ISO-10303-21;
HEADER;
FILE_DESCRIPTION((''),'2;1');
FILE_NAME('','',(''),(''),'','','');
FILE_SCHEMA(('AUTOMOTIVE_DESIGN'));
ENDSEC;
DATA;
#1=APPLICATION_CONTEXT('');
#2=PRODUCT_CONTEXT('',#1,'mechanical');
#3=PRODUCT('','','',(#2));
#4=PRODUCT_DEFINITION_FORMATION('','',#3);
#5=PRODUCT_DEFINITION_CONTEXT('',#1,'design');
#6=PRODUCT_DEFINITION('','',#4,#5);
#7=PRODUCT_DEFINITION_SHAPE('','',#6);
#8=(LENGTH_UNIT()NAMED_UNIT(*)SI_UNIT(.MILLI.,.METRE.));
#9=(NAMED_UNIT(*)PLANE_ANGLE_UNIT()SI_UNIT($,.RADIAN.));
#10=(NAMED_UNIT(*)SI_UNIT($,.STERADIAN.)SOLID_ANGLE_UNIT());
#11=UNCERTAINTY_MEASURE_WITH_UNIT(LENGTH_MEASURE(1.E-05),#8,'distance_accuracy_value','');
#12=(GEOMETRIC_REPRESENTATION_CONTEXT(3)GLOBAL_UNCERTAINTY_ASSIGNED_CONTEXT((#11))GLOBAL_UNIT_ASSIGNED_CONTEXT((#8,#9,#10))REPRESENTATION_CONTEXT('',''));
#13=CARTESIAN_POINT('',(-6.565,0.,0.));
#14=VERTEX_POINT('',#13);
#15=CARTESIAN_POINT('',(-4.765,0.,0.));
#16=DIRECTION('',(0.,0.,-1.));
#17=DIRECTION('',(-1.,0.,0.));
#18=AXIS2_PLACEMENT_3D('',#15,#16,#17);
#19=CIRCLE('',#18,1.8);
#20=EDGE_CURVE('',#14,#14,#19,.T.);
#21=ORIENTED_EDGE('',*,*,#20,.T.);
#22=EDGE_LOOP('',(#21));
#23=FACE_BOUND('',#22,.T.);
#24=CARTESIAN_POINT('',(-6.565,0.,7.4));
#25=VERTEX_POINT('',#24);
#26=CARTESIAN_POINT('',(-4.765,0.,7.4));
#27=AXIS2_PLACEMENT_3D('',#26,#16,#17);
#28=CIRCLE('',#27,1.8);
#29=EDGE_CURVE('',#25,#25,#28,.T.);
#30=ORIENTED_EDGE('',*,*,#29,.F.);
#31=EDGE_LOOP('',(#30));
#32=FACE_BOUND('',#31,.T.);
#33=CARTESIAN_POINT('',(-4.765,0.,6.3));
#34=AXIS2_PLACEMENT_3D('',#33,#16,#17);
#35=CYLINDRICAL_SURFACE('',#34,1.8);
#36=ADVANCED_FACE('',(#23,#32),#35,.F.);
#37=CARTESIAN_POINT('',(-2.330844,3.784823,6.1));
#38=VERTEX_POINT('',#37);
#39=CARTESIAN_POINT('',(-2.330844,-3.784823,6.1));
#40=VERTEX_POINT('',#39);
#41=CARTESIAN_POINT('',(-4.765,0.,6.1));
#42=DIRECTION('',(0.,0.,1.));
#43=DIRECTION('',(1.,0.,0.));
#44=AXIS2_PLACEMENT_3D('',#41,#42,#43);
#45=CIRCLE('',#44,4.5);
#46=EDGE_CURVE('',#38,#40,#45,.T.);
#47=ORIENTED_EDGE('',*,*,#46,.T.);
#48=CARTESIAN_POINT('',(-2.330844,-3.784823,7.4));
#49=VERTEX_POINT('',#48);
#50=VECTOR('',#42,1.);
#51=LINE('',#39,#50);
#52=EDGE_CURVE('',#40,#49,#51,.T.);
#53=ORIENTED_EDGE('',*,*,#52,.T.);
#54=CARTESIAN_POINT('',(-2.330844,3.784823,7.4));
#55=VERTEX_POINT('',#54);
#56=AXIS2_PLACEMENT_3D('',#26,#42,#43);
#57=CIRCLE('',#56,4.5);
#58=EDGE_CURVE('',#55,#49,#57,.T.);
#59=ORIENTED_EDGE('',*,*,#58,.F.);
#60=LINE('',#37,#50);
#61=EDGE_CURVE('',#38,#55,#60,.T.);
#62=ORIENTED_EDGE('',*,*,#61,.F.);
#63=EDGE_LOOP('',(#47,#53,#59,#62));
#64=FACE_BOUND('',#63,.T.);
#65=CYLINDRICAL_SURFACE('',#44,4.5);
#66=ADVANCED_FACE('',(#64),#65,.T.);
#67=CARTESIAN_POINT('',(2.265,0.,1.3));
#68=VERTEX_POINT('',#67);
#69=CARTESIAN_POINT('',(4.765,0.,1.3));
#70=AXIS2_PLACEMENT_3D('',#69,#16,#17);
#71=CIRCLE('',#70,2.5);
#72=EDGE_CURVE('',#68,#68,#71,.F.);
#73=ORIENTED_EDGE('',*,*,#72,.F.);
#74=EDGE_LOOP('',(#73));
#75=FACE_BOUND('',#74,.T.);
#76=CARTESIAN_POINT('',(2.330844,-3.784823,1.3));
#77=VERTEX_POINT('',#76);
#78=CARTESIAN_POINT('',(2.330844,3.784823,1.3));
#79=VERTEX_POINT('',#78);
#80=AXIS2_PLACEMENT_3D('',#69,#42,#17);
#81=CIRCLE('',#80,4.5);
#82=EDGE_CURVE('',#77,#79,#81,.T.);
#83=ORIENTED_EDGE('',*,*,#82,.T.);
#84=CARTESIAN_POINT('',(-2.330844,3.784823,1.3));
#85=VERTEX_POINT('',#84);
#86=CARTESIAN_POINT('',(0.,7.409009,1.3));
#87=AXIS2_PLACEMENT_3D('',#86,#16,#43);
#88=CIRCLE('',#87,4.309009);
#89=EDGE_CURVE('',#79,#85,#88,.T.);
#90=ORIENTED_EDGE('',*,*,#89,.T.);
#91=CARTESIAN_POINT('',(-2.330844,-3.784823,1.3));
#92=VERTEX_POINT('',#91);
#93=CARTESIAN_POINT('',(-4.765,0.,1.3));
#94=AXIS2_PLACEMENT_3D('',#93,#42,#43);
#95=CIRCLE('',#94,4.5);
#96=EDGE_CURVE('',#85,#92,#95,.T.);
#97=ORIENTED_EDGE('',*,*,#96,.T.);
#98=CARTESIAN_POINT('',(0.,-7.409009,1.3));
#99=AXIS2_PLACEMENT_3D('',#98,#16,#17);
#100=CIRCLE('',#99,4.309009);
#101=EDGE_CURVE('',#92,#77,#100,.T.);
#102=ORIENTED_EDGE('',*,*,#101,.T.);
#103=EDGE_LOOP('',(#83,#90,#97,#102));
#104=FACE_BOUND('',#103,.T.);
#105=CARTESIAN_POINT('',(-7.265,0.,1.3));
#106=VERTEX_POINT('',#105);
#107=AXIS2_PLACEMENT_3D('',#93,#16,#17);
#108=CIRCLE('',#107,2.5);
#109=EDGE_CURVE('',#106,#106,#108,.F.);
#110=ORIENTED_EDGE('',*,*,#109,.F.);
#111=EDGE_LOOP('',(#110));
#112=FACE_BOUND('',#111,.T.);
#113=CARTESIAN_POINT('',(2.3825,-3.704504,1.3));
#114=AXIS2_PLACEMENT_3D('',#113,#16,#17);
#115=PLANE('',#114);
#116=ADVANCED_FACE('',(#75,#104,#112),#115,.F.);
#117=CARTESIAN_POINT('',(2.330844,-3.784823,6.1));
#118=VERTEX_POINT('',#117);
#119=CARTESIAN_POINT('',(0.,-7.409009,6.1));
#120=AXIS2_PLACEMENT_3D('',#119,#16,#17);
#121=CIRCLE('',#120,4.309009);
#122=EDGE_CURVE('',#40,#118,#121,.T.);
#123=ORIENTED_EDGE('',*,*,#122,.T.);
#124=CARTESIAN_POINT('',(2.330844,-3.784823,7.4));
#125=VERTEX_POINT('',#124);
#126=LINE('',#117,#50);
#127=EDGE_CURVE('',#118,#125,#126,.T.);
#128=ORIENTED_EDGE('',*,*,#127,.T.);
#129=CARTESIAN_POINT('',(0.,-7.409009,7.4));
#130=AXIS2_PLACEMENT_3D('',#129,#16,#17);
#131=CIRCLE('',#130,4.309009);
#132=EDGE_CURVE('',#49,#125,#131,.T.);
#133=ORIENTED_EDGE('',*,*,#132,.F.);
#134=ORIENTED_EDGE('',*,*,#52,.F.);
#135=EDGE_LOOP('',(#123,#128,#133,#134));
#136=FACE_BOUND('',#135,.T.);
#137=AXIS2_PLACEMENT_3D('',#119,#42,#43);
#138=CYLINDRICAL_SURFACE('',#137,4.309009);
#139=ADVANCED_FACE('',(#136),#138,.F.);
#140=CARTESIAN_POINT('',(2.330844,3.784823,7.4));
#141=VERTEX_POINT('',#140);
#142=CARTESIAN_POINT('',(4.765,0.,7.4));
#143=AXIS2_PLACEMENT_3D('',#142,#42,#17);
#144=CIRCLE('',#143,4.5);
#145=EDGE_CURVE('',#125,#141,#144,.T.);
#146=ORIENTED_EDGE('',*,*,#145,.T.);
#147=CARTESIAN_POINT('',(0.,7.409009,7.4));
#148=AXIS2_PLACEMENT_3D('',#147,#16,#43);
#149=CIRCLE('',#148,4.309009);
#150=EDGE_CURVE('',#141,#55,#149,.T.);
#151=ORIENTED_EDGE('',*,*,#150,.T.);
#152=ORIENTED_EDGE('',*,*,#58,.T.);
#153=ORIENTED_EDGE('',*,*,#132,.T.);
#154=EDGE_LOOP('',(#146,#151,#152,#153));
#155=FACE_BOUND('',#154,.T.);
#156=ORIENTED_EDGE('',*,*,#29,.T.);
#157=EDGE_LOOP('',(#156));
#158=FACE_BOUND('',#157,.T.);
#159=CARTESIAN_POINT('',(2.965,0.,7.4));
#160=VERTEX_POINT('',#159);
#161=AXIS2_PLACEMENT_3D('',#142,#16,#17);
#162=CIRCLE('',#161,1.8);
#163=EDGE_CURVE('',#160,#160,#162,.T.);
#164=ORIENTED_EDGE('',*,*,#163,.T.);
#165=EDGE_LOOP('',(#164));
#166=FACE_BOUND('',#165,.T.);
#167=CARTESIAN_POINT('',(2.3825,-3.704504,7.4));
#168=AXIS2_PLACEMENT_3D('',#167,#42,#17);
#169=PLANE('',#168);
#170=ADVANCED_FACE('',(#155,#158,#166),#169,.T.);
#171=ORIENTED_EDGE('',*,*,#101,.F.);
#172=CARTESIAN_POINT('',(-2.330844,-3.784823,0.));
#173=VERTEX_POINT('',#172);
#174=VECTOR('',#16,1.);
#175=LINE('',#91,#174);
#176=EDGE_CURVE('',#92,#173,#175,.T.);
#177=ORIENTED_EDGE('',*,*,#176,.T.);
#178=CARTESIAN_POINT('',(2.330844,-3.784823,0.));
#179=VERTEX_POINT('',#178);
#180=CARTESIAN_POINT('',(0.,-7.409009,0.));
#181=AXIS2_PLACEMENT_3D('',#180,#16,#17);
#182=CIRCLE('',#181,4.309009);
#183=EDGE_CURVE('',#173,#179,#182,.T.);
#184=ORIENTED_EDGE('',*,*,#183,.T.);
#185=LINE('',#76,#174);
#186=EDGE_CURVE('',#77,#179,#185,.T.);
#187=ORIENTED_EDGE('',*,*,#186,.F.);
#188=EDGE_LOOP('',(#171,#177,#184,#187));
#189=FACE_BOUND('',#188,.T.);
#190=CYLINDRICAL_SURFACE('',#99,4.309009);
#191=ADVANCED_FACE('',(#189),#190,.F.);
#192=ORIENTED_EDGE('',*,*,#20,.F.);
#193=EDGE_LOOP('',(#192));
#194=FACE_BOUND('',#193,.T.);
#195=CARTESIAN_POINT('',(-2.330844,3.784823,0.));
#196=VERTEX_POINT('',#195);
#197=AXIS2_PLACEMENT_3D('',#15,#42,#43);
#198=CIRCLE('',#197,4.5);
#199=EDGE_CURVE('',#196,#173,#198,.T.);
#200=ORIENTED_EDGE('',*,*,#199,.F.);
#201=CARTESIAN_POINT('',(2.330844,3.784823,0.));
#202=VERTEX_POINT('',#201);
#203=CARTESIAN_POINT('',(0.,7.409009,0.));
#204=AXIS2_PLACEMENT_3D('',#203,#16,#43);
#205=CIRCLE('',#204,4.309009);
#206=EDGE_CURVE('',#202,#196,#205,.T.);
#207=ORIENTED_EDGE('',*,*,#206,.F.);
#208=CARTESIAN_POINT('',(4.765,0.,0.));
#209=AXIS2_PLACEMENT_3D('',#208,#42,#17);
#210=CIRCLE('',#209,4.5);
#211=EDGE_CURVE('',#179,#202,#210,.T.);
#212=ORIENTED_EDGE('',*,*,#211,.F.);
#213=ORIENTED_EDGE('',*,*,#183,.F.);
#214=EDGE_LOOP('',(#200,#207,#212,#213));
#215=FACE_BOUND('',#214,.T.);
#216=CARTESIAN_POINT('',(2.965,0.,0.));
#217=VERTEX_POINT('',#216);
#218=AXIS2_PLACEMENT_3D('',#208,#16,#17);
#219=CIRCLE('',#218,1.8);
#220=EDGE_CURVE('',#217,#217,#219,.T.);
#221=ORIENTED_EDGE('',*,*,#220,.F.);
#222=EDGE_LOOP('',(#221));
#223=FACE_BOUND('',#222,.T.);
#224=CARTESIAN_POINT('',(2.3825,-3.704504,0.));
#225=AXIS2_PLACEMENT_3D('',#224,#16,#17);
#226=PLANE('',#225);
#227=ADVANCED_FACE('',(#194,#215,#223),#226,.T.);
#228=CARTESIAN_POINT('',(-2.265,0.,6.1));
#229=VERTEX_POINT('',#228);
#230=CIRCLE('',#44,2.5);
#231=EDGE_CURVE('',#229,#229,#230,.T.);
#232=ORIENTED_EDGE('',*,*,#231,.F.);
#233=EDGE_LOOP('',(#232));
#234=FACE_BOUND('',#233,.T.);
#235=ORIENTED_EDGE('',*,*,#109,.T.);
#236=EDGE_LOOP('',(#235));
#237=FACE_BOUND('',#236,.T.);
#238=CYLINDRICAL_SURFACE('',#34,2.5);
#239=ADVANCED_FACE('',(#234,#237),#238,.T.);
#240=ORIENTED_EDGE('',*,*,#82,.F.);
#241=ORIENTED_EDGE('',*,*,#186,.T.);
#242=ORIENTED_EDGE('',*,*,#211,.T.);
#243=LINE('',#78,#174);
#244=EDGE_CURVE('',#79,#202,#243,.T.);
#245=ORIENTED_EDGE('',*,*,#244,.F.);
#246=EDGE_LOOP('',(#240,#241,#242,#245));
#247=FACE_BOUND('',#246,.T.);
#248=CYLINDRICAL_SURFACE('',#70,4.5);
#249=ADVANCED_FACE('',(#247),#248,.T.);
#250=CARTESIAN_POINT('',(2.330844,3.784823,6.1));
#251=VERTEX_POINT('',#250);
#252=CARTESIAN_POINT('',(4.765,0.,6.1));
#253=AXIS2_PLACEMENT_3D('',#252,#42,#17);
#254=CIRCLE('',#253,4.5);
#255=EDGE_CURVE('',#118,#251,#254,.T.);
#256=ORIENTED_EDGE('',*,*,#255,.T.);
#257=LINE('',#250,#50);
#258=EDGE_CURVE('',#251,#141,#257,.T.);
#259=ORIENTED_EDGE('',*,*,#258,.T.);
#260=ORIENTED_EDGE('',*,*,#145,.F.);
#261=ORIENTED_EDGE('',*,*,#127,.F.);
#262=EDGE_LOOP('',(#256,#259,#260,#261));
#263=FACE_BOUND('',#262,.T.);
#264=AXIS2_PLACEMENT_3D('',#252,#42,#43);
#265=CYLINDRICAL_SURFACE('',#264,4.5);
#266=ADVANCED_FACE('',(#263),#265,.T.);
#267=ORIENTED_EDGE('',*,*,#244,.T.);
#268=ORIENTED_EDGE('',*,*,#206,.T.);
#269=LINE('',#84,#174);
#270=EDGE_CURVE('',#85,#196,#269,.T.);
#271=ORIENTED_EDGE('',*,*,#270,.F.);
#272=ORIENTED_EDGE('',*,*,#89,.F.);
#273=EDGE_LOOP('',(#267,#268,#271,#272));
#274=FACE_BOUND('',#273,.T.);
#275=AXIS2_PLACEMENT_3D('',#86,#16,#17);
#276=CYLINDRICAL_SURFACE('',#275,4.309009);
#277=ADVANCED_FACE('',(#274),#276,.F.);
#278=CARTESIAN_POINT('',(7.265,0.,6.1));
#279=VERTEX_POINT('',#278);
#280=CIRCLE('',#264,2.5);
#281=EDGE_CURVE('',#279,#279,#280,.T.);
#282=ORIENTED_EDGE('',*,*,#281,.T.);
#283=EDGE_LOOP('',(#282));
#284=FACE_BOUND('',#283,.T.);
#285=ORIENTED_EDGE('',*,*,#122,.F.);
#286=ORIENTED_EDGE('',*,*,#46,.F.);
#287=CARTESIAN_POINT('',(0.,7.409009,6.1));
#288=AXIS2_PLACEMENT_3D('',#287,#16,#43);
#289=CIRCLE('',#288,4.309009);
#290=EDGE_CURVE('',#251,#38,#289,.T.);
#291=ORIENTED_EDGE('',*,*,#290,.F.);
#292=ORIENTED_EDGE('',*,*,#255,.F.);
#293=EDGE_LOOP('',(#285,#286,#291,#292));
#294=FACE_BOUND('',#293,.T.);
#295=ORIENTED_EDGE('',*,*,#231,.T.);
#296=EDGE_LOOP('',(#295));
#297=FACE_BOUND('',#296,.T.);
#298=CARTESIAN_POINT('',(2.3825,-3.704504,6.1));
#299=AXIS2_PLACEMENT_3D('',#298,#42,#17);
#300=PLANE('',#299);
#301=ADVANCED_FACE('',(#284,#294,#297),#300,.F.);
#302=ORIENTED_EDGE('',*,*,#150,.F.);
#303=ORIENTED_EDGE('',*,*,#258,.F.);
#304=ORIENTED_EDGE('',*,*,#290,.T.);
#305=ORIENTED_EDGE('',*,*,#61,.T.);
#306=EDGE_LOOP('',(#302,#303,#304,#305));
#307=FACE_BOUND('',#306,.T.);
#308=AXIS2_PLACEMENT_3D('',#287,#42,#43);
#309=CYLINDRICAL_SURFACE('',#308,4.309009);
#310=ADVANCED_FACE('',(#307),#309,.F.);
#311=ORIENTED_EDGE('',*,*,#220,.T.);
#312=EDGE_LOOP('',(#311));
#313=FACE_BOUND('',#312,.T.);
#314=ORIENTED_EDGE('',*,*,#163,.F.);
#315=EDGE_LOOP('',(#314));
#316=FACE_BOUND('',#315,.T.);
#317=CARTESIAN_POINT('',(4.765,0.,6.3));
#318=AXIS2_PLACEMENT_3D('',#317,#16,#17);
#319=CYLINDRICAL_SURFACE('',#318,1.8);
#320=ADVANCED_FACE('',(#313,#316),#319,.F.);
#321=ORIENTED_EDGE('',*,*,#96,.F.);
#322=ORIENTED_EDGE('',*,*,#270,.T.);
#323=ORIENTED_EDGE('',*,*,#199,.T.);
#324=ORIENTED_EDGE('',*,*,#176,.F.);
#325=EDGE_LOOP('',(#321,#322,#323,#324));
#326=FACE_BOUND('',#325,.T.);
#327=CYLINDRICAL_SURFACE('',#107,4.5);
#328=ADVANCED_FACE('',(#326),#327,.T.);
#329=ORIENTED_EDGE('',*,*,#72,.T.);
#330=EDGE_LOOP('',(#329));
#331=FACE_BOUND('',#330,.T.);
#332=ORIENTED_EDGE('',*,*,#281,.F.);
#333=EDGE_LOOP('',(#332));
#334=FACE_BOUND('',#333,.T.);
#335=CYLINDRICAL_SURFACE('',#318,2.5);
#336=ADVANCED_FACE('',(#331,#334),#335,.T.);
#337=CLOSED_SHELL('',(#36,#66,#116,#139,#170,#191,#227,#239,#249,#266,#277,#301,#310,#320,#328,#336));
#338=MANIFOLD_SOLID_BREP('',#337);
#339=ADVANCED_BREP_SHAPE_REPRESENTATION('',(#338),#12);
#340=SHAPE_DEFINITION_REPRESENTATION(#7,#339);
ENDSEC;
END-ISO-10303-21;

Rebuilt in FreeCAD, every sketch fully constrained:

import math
import FreeCAD as App
import Part
import Sketcher

V = App.Vector
Q = App.Units.Quantity

doc = App.newDocument("Part")
body = doc.addObject("PartDesign::Body", "Body")

# Sketch on XY plane
sketch1 = doc.addObject("Sketcher::SketchObject", "Sketch")
body.addObject(sketch1)
sketch1.AttachmentSupport = (doc.XY_Plane, [""])
sketch1.MapMode = "FlatFace"
sketch1.addGeometry([
    Part.ArcOfCircle(Part.Circle(V(-4.765, 0, 0), V(0, 0, 1), 4.5), math.radians(57.253472), math.radians(302.746528)),
    Part.ArcOfCircle(Part.Circle(V(0, -7.409009, 0), V(0, 0, 1), 4.309009), math.radians(57.253472), math.radians(122.746528)),
    Part.ArcOfCircle(Part.Circle(V(4.765, 0, 0), V(0, 0, 1), 4.5), math.radians(-122.746528), math.radians(122.746528)),
    Part.ArcOfCircle(Part.Circle(V(0, 7.409009, 0), V(0, 0, 1), 4.309009), math.radians(-122.746528), math.radians(-57.253472)),
], False)
sketch1.addConstraint([
    Sketcher.Constraint("Tangent", 0, 2, 1, 2),
    Sketcher.Constraint("Tangent", 1, 1, 2, 1),
    Sketcher.Constraint("Tangent", 2, 2, 3, 2),
    Sketcher.Constraint("Tangent", 3, 1, 0, 1),
    Sketcher.Constraint("Equal", 0, 2),
    Sketcher.Constraint("Equal", 1, 3),
    Sketcher.Constraint("Symmetric", 0, 3, 2, 3, -1, 1),
    Sketcher.Constraint("PointOnObject", 0, 3, -1),
    Sketcher.Constraint("Radius", 0, Q("4.5 mm")),
    Sketcher.Constraint("Radius", 1, Q("4.309009 mm")),
    Sketcher.Constraint("DistanceX", 0, 3, 2, 3, Q("9.53 mm")),
])
pad1 = doc.addObject("PartDesign::Pad", "Pad")
body.addObject(pad1)
pad1.Profile = sketch1
pad1.Length = 1.3

# Sketch on XY plane
sketch2 = doc.addObject("Sketcher::SketchObject", "Sketch001")
body.addObject(sketch2)
sketch2.AttachmentSupport = (doc.XY_Plane, [""])
sketch2.MapMode = "FlatFace"
sketch2.AttachmentOffset = App.Placement(V(0, 0, 1.3), App.Rotation())
sketch2.addGeometry([
    Part.Circle(V(-4.765, 0, 0), V(0, 0, 1), 2.5),
    Part.Circle(V(-4.765, 0, 0), V(0, 0, 1), 1.8),
    Part.Circle(V(4.765, 0, 0), V(0, 0, 1), 2.5),
    Part.Circle(V(4.765, 0, 0), V(0, 0, 1), 1.8),
], False)
sketch2.addConstraint([
    Sketcher.Constraint("Coincident", 1, 3, 0, 3),
    Sketcher.Constraint("Coincident", 3, 3, 2, 3),
    Sketcher.Constraint("Equal", 0, 2),
    Sketcher.Constraint("Equal", 1, 3),
    Sketcher.Constraint("Symmetric", 0, 3, 2, 3, -1, 1),
    Sketcher.Constraint("PointOnObject", 0, 3, -1),
    Sketcher.Constraint("Diameter", 0, Q("5 mm")),
    Sketcher.Constraint("Diameter", 1, Q("3.6 mm")),
    Sketcher.Constraint("DistanceX", 0, 3, 2, 3, Q("9.53 mm")),
])
pad2 = doc.addObject("PartDesign::Pad", "Pad001")
body.addObject(pad2)
pad2.Profile = sketch2
pad2.Length = 5
doc.recompute()

datumplane = doc.addObject("PartDesign::Plane", "DatumPlane")
body.addObject(datumplane)
datumplane.AttachmentSupport = (doc.XY_Plane, [""])
datumplane.MapMode = "FlatFace"
datumplane.AttachmentOffset = App.Placement(V(0, 0, 3.7), App.Rotation())
mirrored = doc.addObject("PartDesign::Mirrored", "Mirrored")
body.addObject(mirrored)
mirrored.Originals = [pad1]
mirrored.MirrorPlane = (datumplane, [""])
body.Tip = mirrored

# Sketch on XY plane
sketch3 = doc.addObject("Sketcher::SketchObject", "Sketch002")
body.addObject(sketch3)
sketch3.AttachmentSupport = (doc.XY_Plane, [""])
sketch3.MapMode = "FlatFace"
sketch3.AttachmentOffset = App.Placement(V(0, 0, 3.7), App.Rotation())
sketch3.addGeometry([
    Part.Circle(V(4.765, 0, 0), V(0, 0, 1), 1.8),
    Part.Circle(V(-4.765, 0, 0), V(0, 0, 1), 1.8),
], False)
sketch3.addConstraint([
    Sketcher.Constraint("Equal", 0, 1),
    Sketcher.Constraint("Symmetric", 0, 3, 1, 3, -1, 1),
    Sketcher.Constraint("PointOnObject", 0, 3, -1),
    Sketcher.Constraint("Diameter", 0, Q("3.6 mm")),
    Sketcher.Constraint("DistanceX", 1, 3, 0, 3, Q("9.53 mm")),
])
pocket1 = doc.addObject("PartDesign::Pocket", "Pocket")
body.addObject(pocket1)
pocket1.Profile = sketch3
pocket1.Type = "ThroughAll"
pocket1.Midplane = True

doc.recompute()
